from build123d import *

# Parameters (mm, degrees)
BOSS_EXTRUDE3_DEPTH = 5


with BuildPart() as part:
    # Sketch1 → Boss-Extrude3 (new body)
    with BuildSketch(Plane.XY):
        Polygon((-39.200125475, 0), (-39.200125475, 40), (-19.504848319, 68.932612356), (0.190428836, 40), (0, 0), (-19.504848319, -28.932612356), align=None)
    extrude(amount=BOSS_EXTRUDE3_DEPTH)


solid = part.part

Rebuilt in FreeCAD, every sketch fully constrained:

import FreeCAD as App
import Part
import Sketcher

doc = App.newDocument("Part")
body = doc.addObject("PartDesign::Body", "Body")

# Sketch on XY plane
sketch1 = doc.addObject("Sketcher::SketchObject", "Sketch")
body.addObject(sketch1)
sketch1.AttachmentSupport = (doc.XY_Plane, [""])
sketch1.MapMode = "FlatFace"
sketch1.addGeometry([
    Part.LineSegment(App.Vector(-39, 40, 0), App.Vector(-39, 0, 0)),  # 0
    Part.LineSegment(App.Vector(-39, 0, 0), App.Vector(-20, -29, 0)),  # 1
    Part.LineSegment(App.Vector(-20, -29, 0), App.Vector(0, 0, 0)),  # 2
    Part.LineSegment(App.Vector(0, 0, 0), App.Vector(0, 40, 0)),  # 3
    Part.LineSegment(App.Vector(0, 40, 0), App.Vector(-20, 69, 0)),  # 4
    Part.LineSegment(App.Vector(-20, 69, 0), App.Vector(-39, 40, 0)),  # 5
], False)
sketch1.addConstraint([
    Sketcher.Constraint("Coincident", 0, 2, 1, 1),
    Sketcher.Constraint("Coincident", 1, 2, 2, 1),
    Sketcher.Constraint("Coincident", 2, 2, 3, 1),
    Sketcher.Constraint("Coincident", 3, 2, 4, 1),
    Sketcher.Constraint("Coincident", 4, 2, 5, 1),
    Sketcher.Constraint("Coincident", 5, 2, 0, 1),
    Sketcher.Constraint("Vertical", 0),
    Sketcher.Constraint("Coincident", 2, 2, -1, 1),
    Sketcher.Constraint("PointOnObject", 0, 2, -1),
    Sketcher.Constraint("Parallel", 1, 4),
    Sketcher.Constraint("Horizontal", 3, 2, 5, 2),
    Sketcher.Constraint("Vertical", 1, 2, 4, 2),
    Sketcher.Constraint("Equal", 1, 4),
    Sketcher.Constraint("DistanceY", 0, 2, 0, 1, 40.0),
    Sketcher.Constraint("Distance", 1, 35.0),
    Sketcher.Constraint("DistanceX", 1, 2, -1, 1, 19.504848),
    Sketcher.Constraint("DistanceX", -1, 1, 3, 2, 0.190429),
])
pad1 = doc.addObject("PartDesign::Pad", "Pad")
body.addObject(pad1)
pad1.Profile = sketch1
pad1.Length = 5

doc.recompute()
